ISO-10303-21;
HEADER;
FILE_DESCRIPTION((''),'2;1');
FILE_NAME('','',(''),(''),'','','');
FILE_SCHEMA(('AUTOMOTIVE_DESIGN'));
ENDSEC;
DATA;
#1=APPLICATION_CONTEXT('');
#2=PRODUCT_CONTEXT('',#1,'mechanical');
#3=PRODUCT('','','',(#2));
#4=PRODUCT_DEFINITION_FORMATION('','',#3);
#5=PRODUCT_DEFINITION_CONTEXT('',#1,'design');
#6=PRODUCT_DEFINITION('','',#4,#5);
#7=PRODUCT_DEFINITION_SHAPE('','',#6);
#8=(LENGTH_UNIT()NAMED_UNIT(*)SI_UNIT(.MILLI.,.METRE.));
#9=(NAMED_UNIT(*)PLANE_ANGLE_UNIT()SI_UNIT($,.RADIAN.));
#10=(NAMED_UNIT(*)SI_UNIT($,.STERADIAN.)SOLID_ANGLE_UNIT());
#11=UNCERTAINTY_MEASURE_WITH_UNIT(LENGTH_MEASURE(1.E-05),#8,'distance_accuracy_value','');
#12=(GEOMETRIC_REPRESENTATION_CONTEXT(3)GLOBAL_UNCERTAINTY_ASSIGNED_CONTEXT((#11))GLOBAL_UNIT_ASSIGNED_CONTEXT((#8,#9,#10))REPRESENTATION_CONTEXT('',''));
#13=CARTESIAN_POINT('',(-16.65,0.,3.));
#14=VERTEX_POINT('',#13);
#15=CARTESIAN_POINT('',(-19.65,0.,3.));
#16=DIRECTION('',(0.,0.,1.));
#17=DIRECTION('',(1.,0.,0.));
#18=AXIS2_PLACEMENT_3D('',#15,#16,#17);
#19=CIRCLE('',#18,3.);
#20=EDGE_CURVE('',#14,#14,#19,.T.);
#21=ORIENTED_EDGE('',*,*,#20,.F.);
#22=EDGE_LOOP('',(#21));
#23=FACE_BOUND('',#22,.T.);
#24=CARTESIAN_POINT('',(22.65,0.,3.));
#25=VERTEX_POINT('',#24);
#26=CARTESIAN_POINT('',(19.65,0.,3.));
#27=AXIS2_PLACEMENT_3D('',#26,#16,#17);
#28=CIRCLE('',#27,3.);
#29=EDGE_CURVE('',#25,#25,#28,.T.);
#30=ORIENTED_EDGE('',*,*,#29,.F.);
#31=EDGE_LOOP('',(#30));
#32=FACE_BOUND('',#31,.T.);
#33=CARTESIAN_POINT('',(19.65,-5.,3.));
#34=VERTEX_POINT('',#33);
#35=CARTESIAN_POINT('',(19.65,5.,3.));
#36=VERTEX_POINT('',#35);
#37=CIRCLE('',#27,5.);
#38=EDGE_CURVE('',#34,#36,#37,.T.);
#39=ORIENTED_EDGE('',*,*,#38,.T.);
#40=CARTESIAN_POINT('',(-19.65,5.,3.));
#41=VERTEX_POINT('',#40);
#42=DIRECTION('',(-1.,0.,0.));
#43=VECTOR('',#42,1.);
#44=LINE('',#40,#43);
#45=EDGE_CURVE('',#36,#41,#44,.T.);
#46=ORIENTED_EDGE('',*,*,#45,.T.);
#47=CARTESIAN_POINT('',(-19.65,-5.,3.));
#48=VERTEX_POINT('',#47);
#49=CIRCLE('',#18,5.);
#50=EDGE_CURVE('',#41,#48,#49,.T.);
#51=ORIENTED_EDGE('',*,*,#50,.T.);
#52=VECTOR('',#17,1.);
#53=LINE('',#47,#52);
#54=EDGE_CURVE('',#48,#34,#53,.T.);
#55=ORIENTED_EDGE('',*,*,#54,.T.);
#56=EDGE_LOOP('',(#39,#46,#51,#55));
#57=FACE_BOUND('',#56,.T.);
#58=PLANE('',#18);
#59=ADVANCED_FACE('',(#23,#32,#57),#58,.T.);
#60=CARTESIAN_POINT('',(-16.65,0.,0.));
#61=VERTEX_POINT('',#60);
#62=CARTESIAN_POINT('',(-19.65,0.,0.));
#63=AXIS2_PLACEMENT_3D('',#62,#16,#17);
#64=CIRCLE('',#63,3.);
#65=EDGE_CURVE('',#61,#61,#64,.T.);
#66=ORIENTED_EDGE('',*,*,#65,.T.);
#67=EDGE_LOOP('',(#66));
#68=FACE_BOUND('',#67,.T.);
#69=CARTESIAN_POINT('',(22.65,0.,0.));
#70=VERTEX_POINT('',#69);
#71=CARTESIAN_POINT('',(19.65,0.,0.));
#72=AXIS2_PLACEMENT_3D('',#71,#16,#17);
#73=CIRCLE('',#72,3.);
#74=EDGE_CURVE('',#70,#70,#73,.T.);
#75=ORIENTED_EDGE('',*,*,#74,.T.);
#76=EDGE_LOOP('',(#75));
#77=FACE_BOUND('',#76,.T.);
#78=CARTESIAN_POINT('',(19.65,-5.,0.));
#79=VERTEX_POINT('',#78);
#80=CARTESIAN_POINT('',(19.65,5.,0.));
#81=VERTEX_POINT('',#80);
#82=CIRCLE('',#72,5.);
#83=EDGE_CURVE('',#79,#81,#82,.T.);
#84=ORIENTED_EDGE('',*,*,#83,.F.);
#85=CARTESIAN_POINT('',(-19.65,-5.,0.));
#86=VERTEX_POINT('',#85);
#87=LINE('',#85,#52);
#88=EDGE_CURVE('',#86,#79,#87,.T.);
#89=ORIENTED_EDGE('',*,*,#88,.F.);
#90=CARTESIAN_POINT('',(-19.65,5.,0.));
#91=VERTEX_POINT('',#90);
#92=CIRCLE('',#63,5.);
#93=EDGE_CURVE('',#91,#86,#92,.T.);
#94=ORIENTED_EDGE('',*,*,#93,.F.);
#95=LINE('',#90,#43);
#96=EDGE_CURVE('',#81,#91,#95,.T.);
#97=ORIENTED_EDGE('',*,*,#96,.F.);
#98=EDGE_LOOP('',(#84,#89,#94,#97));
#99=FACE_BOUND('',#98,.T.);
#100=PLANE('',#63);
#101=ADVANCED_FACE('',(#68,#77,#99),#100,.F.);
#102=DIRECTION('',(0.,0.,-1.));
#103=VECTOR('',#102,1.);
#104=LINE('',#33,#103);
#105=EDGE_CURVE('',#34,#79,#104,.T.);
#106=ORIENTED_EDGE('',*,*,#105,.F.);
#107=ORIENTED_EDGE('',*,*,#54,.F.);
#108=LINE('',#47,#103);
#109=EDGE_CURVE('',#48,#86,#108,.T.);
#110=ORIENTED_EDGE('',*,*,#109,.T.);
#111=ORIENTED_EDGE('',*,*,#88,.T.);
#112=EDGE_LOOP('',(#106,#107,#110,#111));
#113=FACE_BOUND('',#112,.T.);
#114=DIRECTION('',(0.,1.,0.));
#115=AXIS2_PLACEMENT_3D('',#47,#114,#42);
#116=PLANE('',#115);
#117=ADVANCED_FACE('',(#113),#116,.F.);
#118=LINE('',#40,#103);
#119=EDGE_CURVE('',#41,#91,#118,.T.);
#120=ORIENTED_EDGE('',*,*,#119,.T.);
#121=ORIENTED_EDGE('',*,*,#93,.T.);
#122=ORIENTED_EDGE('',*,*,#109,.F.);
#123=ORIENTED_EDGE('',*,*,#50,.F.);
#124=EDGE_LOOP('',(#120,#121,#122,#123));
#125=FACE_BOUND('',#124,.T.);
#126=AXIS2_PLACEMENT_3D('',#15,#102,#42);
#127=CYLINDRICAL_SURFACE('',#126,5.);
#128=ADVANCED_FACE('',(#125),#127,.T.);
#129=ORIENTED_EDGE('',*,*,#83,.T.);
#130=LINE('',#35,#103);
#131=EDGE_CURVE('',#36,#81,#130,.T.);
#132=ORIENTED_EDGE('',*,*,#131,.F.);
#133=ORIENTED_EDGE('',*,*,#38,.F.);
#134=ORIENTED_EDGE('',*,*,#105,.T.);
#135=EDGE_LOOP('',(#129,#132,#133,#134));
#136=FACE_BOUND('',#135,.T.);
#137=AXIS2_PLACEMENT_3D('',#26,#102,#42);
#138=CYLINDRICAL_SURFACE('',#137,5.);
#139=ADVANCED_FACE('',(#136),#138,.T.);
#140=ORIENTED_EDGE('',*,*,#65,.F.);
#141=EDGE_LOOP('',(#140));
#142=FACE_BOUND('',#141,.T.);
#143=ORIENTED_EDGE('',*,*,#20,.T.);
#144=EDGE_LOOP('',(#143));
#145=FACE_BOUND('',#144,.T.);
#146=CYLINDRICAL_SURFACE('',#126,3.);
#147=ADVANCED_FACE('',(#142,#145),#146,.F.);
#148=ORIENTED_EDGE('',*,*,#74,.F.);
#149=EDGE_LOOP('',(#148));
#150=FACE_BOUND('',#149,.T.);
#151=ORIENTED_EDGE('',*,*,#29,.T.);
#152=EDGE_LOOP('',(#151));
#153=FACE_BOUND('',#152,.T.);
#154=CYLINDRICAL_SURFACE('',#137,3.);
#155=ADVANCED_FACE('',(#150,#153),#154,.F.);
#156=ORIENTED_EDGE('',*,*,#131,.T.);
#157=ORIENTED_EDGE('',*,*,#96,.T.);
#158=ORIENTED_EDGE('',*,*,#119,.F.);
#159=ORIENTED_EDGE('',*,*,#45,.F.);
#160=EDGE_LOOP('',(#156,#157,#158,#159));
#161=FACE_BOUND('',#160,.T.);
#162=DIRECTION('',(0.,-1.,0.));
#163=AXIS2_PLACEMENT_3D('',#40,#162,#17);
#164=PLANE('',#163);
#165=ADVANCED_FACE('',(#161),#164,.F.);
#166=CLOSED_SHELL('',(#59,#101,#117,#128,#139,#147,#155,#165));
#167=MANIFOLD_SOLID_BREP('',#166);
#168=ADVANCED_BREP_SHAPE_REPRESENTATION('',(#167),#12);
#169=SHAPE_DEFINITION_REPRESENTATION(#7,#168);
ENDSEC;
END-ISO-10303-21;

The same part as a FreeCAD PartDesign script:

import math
import FreeCAD as App
import Part
import Sketcher
from FreeCAD import Vector
Q = App.Units.Quantity

doc = App.newDocument("Part")
body = doc.addObject("PartDesign::Body", "Body")

# Sketch on XY plane
sketch1 = body.newObject("Sketcher::SketchObject", "Sketch")
sketch1.AttachmentSupport = (doc.getObject("XY_Plane"), [""])
sketch1.MapMode = "FlatFace"
sketch1.addGeometry(Part.LineSegment(Vector(19.6, 5, 0), Vector(-19.6, 5, 0)), False)
sketch1.addGeometry(Part.ArcOfCircle(Part.Circle(Vector(-19.6, 0, 0), Vector(0, 0, 1), 5), math.radians(90), math.radians(270)), False)
sketch1.addGeometry(Part.LineSegment(Vector(-19.6, -5, 0), Vector(19.6, -5, 0)), False)
sketch1.addGeometry(Part.ArcOfCircle(Part.Circle(Vector(19.6, 0, 0), Vector(0, 0, 1), 5), math.radians(-90), math.radians(90)), False)
sketch1.addGeometry(Part.Circle(Vector(19.6, 0, 0), Vector(0, 0, 1), 3), False)
sketch1.addGeometry(Part.Circle(Vector(-19.6, 0, 0), Vector(0, 0, 1), 3), False)
sketch1.addConstraint(Sketcher.Constraint("Tangent", 0, 2, 1, 1))
sketch1.addConstraint(Sketcher.Constraint("Tangent", 1, 2, 2, 1))
sketch1.addConstraint(Sketcher.Constraint("Tangent", 2, 2, 3, 1))
sketch1.addConstraint(Sketcher.Constraint("Tangent", 3, 2, 0, 1))
sketch1.addConstraint(Sketcher.Constraint("Horizontal", 0))
sketch1.addConstraint(Sketcher.Constraint("Horizontal", 2))
sketch1.addConstraint(Sketcher.Constraint("Coincident", 4, 3, 3, 3))
sketch1.addConstraint(Sketcher.Constraint("Coincident", 5, 3, 1, 3))
sketch1.addConstraint(Sketcher.Constraint("Equal", 4, 5))
sketch1.addConstraint(Sketcher.Constraint("Symmetric", 1, 3, 3, 3, -1, 1))
sketch1.addConstraint(Sketcher.Constraint("Diameter", 4, Q("6 mm")))
sketch1.addConstraint(Sketcher.Constraint("Radius", 1, Q("5 mm")))
sketch1.addConstraint(Sketcher.Constraint("DistanceX", 0, 2, 0, 1, Q("39.3 mm")))
pad1 = body.newObject("PartDesign::Pad", "Pad")
pad1.Profile = sketch1
pad1.Length = 3

doc.recompute()
